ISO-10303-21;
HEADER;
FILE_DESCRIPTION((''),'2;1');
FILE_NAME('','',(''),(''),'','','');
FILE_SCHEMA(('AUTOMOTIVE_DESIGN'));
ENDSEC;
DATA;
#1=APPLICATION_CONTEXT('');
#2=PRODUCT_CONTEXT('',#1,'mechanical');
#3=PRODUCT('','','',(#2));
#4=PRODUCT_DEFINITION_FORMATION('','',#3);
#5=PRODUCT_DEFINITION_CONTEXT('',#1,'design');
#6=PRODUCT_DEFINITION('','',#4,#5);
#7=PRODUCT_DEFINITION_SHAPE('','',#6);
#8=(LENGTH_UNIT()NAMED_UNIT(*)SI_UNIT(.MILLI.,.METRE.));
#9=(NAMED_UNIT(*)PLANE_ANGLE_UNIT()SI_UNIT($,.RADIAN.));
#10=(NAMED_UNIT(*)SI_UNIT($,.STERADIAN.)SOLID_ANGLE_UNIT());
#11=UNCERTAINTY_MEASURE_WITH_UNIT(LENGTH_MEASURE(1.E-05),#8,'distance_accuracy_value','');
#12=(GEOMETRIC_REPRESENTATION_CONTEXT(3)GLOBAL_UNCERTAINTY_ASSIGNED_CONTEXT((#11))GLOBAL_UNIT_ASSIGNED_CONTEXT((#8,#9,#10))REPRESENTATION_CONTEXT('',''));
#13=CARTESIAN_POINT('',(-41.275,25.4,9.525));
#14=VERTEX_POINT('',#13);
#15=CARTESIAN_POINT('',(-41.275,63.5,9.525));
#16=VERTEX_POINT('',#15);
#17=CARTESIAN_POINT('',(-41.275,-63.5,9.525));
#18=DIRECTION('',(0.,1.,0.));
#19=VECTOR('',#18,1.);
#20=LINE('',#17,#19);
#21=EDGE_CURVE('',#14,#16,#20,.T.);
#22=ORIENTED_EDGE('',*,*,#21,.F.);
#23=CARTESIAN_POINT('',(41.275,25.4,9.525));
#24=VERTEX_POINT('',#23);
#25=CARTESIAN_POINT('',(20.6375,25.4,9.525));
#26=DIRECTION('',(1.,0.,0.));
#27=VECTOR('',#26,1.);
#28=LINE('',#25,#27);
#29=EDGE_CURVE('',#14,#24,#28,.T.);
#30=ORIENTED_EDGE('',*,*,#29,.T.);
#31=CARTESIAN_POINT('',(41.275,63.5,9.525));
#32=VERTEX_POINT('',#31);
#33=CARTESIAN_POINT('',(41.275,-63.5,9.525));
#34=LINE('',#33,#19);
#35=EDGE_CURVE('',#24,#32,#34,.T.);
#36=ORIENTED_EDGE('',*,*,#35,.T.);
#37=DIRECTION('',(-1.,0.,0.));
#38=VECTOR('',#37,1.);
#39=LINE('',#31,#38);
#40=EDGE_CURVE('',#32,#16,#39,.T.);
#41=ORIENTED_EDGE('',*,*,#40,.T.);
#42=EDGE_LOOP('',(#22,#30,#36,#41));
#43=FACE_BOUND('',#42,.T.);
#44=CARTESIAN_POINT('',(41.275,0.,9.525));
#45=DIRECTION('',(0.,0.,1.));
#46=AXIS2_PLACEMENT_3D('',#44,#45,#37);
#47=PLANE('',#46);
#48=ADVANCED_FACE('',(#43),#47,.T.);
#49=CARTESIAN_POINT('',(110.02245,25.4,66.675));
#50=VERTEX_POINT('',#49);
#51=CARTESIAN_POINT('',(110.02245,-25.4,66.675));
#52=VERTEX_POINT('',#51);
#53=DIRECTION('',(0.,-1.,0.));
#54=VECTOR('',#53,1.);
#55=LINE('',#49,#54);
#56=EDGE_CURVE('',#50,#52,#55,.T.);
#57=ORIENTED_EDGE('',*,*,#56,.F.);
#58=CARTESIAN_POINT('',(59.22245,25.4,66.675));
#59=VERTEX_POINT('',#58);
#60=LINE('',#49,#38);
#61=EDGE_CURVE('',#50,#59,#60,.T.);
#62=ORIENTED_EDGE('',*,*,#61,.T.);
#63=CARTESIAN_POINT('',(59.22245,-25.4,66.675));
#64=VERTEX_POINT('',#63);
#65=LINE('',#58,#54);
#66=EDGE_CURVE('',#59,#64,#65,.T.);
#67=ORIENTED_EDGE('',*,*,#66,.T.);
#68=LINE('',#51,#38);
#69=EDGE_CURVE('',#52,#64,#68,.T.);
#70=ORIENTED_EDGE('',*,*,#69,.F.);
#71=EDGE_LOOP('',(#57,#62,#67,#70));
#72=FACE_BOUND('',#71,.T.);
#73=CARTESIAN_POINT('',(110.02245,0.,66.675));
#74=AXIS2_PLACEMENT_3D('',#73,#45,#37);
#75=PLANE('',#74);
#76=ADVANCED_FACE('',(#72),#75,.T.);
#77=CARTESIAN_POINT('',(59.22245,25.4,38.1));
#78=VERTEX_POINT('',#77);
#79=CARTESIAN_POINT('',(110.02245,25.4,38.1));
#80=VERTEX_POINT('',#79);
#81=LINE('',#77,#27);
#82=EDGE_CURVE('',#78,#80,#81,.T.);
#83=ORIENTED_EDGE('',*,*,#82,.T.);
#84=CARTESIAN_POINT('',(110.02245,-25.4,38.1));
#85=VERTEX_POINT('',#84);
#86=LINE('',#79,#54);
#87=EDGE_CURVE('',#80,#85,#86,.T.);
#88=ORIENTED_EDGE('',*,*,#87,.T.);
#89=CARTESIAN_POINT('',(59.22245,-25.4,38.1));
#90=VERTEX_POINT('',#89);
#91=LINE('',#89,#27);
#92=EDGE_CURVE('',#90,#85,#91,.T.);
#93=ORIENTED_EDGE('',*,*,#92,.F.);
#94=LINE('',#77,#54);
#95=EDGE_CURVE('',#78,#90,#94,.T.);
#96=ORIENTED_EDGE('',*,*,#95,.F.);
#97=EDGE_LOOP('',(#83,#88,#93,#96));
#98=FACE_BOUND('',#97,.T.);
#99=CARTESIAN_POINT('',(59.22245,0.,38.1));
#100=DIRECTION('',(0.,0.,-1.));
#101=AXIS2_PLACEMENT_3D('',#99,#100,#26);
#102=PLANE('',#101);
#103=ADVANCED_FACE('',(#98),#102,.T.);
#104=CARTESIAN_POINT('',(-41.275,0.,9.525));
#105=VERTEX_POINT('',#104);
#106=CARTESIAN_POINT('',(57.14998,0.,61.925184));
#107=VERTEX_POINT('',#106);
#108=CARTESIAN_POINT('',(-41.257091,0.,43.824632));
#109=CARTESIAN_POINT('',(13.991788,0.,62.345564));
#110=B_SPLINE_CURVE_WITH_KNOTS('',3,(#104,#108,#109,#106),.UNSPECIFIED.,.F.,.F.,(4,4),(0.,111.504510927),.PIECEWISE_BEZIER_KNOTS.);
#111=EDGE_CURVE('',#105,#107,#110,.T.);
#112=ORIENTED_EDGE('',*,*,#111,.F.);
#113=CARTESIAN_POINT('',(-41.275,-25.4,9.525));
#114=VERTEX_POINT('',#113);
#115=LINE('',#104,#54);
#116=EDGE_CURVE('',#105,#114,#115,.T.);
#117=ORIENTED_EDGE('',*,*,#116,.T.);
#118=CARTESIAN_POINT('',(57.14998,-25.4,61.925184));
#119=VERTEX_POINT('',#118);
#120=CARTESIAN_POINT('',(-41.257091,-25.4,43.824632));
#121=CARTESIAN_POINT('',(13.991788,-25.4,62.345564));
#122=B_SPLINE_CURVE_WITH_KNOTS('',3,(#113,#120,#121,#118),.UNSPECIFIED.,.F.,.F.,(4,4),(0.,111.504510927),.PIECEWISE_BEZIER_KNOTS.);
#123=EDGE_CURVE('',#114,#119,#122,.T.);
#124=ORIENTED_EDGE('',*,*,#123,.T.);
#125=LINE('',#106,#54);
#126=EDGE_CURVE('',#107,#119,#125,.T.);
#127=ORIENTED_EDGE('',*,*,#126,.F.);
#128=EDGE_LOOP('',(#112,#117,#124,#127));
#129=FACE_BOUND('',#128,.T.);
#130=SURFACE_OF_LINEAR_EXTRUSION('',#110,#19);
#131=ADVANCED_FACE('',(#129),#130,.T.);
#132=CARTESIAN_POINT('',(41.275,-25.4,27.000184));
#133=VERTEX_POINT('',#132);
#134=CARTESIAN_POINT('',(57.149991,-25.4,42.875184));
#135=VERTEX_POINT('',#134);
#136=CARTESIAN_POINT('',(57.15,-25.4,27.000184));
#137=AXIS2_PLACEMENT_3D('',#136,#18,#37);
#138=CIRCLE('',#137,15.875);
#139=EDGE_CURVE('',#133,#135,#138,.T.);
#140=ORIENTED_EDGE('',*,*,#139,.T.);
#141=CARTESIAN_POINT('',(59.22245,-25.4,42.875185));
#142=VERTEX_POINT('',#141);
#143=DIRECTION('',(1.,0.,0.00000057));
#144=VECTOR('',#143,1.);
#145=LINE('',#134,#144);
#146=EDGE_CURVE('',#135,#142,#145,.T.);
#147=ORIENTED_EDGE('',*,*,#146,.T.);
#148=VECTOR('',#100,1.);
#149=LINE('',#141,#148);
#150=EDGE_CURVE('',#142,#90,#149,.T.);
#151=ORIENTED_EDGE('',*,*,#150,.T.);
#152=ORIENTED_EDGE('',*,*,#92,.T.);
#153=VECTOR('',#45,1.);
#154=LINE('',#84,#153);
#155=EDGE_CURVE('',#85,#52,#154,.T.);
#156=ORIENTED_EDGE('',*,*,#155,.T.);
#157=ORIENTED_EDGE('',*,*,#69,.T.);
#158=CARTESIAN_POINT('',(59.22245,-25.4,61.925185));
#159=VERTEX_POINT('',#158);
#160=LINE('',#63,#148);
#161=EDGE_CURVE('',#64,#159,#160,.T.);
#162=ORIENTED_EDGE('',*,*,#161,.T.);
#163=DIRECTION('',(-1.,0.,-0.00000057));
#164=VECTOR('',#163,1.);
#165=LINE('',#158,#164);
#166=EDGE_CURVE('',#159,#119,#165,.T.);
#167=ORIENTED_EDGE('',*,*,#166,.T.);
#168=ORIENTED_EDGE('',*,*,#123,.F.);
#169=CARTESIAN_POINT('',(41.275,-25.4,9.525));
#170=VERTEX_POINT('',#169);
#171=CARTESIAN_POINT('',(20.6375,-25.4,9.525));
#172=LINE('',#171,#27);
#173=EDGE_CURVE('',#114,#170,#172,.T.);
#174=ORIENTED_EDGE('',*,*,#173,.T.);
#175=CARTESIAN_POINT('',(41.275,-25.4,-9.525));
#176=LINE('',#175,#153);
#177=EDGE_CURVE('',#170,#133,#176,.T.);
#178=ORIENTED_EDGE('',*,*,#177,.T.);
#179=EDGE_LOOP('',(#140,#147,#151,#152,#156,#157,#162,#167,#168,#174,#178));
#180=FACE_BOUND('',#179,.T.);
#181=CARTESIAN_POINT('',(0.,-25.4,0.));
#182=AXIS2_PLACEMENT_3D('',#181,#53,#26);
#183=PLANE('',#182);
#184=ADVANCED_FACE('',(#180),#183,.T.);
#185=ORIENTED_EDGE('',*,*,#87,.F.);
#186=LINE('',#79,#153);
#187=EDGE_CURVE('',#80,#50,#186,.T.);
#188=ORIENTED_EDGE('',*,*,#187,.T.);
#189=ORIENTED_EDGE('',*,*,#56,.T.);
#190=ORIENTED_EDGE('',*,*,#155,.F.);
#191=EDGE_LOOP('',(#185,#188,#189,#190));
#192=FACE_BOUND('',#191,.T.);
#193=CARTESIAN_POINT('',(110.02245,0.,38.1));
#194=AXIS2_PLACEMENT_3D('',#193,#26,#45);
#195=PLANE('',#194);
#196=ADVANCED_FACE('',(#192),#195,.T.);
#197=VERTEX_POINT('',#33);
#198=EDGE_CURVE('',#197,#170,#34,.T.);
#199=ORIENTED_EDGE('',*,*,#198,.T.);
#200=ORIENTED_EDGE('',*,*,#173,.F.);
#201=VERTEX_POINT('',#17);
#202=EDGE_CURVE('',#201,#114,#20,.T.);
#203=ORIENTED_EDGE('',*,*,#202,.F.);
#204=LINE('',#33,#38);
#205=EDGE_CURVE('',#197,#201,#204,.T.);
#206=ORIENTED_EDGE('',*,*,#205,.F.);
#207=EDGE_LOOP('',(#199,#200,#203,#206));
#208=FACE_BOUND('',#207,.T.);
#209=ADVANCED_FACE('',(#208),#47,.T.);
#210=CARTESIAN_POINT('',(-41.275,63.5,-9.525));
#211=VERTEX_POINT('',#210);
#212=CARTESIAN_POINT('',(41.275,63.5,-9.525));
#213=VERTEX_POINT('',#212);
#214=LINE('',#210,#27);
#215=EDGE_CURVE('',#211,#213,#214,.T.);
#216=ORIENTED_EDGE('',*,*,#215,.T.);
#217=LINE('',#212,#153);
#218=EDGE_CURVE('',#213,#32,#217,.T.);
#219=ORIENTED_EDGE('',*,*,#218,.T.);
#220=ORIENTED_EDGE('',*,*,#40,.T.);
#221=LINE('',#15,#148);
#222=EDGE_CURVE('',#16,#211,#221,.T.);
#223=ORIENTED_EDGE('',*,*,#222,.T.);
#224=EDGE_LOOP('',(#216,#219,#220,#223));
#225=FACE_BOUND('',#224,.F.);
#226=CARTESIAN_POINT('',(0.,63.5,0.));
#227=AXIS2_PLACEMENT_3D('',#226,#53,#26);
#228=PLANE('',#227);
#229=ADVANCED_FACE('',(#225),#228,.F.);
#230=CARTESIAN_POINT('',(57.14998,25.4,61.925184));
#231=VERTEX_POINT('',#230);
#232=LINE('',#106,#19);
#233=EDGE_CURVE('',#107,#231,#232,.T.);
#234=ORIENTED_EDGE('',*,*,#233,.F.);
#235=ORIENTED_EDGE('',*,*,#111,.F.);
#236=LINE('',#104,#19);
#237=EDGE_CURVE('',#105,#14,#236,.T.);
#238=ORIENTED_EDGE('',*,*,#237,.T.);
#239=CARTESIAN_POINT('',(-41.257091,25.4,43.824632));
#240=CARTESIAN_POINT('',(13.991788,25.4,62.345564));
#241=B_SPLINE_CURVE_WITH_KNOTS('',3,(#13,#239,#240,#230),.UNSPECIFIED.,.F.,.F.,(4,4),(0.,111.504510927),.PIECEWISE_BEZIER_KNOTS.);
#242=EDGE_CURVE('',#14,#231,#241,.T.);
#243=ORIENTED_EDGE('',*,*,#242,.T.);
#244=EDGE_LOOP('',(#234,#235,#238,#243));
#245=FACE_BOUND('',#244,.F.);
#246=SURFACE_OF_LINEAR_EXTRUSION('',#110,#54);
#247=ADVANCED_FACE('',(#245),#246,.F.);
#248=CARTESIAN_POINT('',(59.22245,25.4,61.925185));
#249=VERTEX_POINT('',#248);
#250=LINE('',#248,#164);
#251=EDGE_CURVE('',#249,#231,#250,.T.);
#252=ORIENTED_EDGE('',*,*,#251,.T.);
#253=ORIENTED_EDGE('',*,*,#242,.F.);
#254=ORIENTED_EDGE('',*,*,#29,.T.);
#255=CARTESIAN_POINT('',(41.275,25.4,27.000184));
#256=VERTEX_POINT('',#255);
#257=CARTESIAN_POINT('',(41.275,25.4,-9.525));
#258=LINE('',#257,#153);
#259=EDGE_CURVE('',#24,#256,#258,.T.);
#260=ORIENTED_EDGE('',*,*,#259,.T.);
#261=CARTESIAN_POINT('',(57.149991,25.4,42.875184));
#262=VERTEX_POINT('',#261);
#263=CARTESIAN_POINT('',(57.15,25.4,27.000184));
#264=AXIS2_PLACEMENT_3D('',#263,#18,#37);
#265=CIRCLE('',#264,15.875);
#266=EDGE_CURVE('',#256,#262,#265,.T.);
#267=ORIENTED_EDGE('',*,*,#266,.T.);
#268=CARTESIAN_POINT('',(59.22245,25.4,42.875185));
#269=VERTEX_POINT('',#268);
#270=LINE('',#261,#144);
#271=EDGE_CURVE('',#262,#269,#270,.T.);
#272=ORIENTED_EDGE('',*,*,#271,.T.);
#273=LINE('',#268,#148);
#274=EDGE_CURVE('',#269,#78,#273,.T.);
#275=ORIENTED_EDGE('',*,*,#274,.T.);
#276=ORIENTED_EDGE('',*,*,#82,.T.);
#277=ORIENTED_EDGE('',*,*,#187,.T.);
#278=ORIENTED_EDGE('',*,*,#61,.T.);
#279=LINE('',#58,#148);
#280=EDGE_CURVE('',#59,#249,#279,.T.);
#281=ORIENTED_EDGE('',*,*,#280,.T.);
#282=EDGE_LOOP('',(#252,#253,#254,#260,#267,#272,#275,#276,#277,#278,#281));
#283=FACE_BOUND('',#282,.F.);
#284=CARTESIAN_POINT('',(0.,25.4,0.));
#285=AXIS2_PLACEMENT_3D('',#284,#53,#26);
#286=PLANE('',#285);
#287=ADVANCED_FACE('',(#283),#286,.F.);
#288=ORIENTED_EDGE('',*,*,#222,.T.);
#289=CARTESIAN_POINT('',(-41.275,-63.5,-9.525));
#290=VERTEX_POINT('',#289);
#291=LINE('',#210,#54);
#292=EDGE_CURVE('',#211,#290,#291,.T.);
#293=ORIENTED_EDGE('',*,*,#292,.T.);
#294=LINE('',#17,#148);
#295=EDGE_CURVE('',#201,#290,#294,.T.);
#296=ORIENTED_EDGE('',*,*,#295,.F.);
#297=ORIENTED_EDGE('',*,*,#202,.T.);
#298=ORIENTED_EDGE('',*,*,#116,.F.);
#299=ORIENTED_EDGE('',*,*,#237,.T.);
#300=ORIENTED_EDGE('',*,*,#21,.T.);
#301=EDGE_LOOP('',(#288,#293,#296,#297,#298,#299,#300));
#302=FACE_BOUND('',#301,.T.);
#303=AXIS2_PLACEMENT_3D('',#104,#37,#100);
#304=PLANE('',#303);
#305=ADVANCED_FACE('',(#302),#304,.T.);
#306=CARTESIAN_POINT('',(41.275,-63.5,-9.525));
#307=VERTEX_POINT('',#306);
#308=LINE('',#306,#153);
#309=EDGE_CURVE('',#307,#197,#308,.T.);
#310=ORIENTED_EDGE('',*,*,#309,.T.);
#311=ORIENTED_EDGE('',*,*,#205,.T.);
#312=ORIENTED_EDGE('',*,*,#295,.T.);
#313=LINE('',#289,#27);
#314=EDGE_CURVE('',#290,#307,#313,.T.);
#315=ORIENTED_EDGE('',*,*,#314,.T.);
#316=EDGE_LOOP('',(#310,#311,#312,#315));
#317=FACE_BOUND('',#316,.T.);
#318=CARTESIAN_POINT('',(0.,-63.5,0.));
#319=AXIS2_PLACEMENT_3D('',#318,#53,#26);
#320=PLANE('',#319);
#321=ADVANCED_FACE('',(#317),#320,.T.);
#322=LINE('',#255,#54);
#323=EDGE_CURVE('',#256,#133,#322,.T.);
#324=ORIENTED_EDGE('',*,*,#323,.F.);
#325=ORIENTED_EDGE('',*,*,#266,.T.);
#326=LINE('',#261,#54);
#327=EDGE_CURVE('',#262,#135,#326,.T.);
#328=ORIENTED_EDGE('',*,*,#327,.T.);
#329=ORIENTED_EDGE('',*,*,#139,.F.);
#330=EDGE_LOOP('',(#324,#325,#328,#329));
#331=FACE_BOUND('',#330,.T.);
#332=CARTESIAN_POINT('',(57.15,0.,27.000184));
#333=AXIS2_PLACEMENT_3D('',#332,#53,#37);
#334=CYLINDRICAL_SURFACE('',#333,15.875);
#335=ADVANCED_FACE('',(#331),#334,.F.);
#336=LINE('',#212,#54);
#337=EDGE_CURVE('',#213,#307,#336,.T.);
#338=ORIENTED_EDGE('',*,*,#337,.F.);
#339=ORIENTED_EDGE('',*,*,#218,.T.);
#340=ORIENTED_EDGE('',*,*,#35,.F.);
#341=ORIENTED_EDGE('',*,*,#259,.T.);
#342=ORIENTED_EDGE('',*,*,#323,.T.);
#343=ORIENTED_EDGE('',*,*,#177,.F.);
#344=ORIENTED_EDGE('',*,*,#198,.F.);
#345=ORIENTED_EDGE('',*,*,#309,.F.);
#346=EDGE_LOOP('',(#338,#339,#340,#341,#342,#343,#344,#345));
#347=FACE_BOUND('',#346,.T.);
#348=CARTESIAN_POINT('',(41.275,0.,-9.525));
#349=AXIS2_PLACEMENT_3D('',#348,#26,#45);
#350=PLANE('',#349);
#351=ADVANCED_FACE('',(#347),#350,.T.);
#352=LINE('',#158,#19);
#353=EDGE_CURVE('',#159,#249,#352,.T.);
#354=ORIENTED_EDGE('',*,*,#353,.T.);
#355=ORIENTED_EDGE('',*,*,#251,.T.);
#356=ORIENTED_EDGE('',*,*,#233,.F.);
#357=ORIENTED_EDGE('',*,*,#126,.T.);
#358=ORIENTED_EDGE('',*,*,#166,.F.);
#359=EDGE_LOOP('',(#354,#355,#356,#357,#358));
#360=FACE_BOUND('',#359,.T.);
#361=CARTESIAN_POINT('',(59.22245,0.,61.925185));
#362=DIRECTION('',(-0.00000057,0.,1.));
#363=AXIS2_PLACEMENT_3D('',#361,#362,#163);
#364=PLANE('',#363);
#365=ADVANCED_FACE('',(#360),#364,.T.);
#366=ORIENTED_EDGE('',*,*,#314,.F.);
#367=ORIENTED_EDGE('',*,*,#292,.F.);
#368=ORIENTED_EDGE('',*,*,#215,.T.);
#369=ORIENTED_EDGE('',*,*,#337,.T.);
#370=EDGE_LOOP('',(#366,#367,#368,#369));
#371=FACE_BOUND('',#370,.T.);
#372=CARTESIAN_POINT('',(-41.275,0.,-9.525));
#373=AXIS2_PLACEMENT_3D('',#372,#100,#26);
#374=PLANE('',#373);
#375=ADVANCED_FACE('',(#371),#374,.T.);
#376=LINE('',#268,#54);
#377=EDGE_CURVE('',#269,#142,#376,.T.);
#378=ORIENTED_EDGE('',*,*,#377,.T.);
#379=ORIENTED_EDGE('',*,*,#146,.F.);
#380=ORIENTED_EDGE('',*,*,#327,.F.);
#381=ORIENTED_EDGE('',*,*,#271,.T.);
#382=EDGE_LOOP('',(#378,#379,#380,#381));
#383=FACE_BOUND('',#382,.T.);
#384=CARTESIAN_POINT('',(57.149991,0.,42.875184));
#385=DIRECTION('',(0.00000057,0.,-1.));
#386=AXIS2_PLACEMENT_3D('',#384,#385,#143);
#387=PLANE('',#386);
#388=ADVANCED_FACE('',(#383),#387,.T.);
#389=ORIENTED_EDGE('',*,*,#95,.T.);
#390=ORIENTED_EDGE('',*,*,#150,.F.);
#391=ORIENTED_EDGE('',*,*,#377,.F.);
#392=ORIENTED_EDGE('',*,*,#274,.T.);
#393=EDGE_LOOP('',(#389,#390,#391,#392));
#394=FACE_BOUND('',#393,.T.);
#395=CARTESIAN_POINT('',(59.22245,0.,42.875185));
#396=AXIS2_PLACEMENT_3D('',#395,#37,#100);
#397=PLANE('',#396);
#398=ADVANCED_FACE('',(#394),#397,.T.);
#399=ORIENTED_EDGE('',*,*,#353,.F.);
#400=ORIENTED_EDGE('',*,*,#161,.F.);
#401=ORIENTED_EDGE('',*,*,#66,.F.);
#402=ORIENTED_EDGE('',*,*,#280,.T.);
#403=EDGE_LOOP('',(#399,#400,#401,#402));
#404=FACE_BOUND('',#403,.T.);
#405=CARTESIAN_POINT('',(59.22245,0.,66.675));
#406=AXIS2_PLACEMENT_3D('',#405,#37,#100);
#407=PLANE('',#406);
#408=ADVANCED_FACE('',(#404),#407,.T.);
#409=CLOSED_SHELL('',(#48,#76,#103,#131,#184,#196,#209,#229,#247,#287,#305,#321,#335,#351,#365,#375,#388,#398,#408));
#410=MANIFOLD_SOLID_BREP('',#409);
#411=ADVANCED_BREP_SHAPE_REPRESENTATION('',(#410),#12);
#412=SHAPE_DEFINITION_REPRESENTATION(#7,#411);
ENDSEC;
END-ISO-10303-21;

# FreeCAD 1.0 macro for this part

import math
import FreeCAD as App
import Part
import Sketcher

V = App.Vector
Q = App.Units.Quantity

doc = App.newDocument("Part")
params = doc.addObject("Spreadsheet::Sheet", "Params")
for row, (alias, value) in enumerate([
    ("sketch1_width", "3.25 in"),
    ("sketch1_height", "0.75 in"),
    ("pad1_length", "5 in"),
    ("sketch2_width", "2 in"),
    ("sketch2_radius", "0.625 in"),
    ("sketch2_width2", "3.25 in"),
    ("sketch2_height", "0.75 in"),
    ("sketch2_height2", "1.125 in"),
    ("pad2_length", "2 in"),
], start=1):
    params.set(f"A{row}", alias)
    params.set(f"B{row}", "=" + value)
    params.setAlias(f"B{row}", alias)

body = doc.addObject("PartDesign::Body", "Body")

# Sketch on XZ plane
sketch1 = body.newObject("Sketcher::SketchObject", "Sketch")
sketch1.AttachmentSupport = (doc.getObject("XZ_Plane"), [""])
sketch1.MapMode = "FlatFace"
sketch1.addGeometry(Part.LineSegment(V(-41.275, 9.525, 0), V(-41.275, -9.525, 0)), False)
sketch1.addGeometry(Part.LineSegment(V(-41.275, -9.525, 0), V(41.275, -9.525, 0)), False)
sketch1.addGeometry(Part.LineSegment(V(41.275, -9.525, 0), V(41.275, 9.525, 0)), False)
sketch1.addGeometry(Part.LineSegment(V(41.275, 9.525, 0), V(-41.275, 9.525, 0)), False)
sketch1.addConstraint(Sketcher.Constraint("Coincident", 0, 2, 1, 1))
sketch1.addConstraint(Sketcher.Constraint("Coincident", 1, 2, 2, 1))
sketch1.addConstraint(Sketcher.Constraint("Coincident", 2, 2, 3, 1))
sketch1.addConstraint(Sketcher.Constraint("Coincident", 3, 2, 0, 1))
sketch1.addConstraint(Sketcher.Constraint("Vertical", 0))
sketch1.addConstraint(Sketcher.Constraint("Horizontal", 1))
sketch1.addConstraint(Sketcher.Constraint("Vertical", 2))
sketch1.addConstraint(Sketcher.Constraint("Horizontal", 3))
sketch1.addConstraint(Sketcher.Constraint("Symmetric", 0, 2, 2, 2, -1, 1))
sketch1.addConstraint(Sketcher.Constraint("DistanceX", 1, 1, 1, 2, Q("3.25 in")))
sketch1.addConstraint(Sketcher.Constraint("DistanceY", 0, 2, 0, 1, Q("0.75 in")))
sketch1.setExpression("Constraints[9]", "Params.sketch1_width")
sketch1.setExpression("Constraints[10]", "Params.sketch1_height")
pad1 = body.newObject("PartDesign::Pad", "Pad")
pad1.Profile = sketch1
pad1.setExpression("Length", "Params.pad1_length")
pad1.Midplane = True

# Sketch on XZ plane
sketch2 = body.newObject("Sketcher::SketchObject", "Sketch001")
sketch2.AttachmentSupport = (doc.getObject("XZ_Plane"), [""])
sketch2.MapMode = "FlatFace"
sketch2.addGeometry(Part.LineSegment(V(-41.275, 9.525, 0), V(-41.275, -9.525, 0)), False)
sketch2.addGeometry(Part.LineSegment(V(-41.275, -9.525, 0), V(41.275, -9.525, 0)), False)
sketch2.addGeometry(Part.LineSegment(V(41.275, -9.525, 0), V(41.275, 27.000184, 0)), False)
sketch2.addGeometry(Part.ArcOfCircle(Part.Circle(V(57.15, 27.000184, 0), V(0, 0, 1), 15.875), math.radians(90.000033), math.radians(180)), False)
sketch2.addGeometry(Part.LineSegment(V(57.149991, 42.875184, 0), V(59.22245, 42.875185, 0)), False)
sketch2.addGeometry(Part.LineSegment(V(59.22245, 42.875185, 0), V(59.22245, 38.1, 0)), False)
sketch2.addGeometry(Part.LineSegment(V(59.22245, 38.1, 0), V(110.02245, 38.1, 0)), False)
sketch2.addGeometry(Part.LineSegment(V(110.02245, 38.1, 0), V(110.02245, 66.675, 0)), False)
sketch2.addGeometry(Part.LineSegment(V(110.02245, 66.675, 0), V(59.22245, 66.675, 0)), False)
sketch2.addGeometry(Part.LineSegment(V(59.22245, 66.675, 0), V(59.22245, 61.925185, 0)), False)
sketch2.addGeometry(Part.LineSegment(V(59.22245, 61.925185, 0), V(57.14998, 61.925184, 0)), False)
sketch2.addGeometry(Part.BSplineCurve([V(-41.275, 9.525, 0), V(-41.257091, 43.824632, 0), V(13.991788, 62.345564, 0), V(57.14998, 61.925184, 0)], [4, 4], [0, 111.504510927], False, 3, [1, 1, 1, 1], False), False)
sketch2.addConstraint(Sketcher.Constraint("Block", 11))
sketch2.addConstraint(Sketcher.Constraint("Coincident", 0, 2, 1, 1))
sketch2.addConstraint(Sketcher.Constraint("Coincident", 1, 2, 2, 1))
sketch2.addConstraint(Sketcher.Constraint("Tangent", 2, 2, 3, 2))
sketch2.addConstraint(Sketcher.Constraint("Tangent", 3, 1, 4, 1))
sketch2.addConstraint(Sketcher.Constraint("Coincident", 4, 2, 5, 1))
sketch2.addConstraint(Sketcher.Constraint("Coincident", 5, 2, 6, 1))
sketch2.addConstraint(Sketcher.Constraint("Coincident", 6, 2, 7, 1))
sketch2.addConstraint(Sketcher.Constraint("Coincident", 7, 2, 8, 1))
sketch2.addConstraint(Sketcher.Constraint("Coincident", 8, 2, 9, 1))
sketch2.addConstraint(Sketcher.Constraint("Coincident", 9, 2, 10, 1))
sketch2.addConstraint(Sketcher.Constraint("Coincident", 10, 2, 11, 2))
sketch2.addConstraint(Sketcher.Constraint("Coincident", 11, 1, 0, 1))
sketch2.addConstraint(Sketcher.Constraint("Vertical", 0))
sketch2.addConstraint(Sketcher.Constraint("Horizontal", 1))
sketch2.addConstraint(Sketcher.Constraint("Vertical", 2))
sketch2.addConstraint(Sketcher.Constraint("Horizontal", 4))
sketch2.addConstraint(Sketcher.Constraint("Vertical", 5))
sketch2.addConstraint(Sketcher.Constraint("Horizontal", 6))
sketch2.addConstraint(Sketcher.Constraint("Vertical", 7))
sketch2.addConstraint(Sketcher.Constraint("Horizontal", 8))
sketch2.addConstraint(Sketcher.Constraint("Vertical", 9))
sketch2.addConstraint(Sketcher.Constraint("Horizontal", 10))
sketch2.addConstraint(Sketcher.Constraint("Vertical", 5, 2, 8, 2))
sketch2.addConstraint(Sketcher.Constraint("DistanceX", 6, 1, 6, 2, Q("2 in")))
sketch2.addConstraint(Sketcher.Constraint("Radius", 3, Q("0.625 in")))
sketch2.addConstraint(Sketcher.Constraint("DistanceX", 1, 1, 1, 2, Q("3.25 in")))
sketch2.addConstraint(Sketcher.Constraint("DistanceY", 0, 2, 0, 1, Q("0.75 in")))
sketch2.addConstraint(Sketcher.Constraint("DistanceY", -1, 1, 5, 2, Q("1.5 in")))
sketch2.addConstraint(Sketcher.Constraint("DistanceY", 7, 1, 7, 2, Q("1.125 in")))
sketch2.addConstraint(Sketcher.Constraint("DistanceY", 4, 2, 9, 2, Q("0.75 in")))
sketch2.addConstraint(Sketcher.Constraint("DistanceX", 4, 1, 4, 2, Q("2.072459 mm")))
sketch2.setExpression("Constraints[24]", "Params.sketch2_width")
sketch2.setExpression("Constraints[25]", "Params.sketch2_radius")
sketch2.setExpression("Constraints[26]", "Params.sketch2_width2")
sketch2.setExpression("Constraints[27]", "Params.sketch2_height")
sketch2.setExpression("Constraints[29]", "Params.sketch2_height2")
pad2 = body.newObject("PartDesign::Pad", "Pad001")
pad2.Profile = sketch2
pad2.setExpression("Length", "Params.pad2_length")
pad2.Midplane = True

doc.recompute()
